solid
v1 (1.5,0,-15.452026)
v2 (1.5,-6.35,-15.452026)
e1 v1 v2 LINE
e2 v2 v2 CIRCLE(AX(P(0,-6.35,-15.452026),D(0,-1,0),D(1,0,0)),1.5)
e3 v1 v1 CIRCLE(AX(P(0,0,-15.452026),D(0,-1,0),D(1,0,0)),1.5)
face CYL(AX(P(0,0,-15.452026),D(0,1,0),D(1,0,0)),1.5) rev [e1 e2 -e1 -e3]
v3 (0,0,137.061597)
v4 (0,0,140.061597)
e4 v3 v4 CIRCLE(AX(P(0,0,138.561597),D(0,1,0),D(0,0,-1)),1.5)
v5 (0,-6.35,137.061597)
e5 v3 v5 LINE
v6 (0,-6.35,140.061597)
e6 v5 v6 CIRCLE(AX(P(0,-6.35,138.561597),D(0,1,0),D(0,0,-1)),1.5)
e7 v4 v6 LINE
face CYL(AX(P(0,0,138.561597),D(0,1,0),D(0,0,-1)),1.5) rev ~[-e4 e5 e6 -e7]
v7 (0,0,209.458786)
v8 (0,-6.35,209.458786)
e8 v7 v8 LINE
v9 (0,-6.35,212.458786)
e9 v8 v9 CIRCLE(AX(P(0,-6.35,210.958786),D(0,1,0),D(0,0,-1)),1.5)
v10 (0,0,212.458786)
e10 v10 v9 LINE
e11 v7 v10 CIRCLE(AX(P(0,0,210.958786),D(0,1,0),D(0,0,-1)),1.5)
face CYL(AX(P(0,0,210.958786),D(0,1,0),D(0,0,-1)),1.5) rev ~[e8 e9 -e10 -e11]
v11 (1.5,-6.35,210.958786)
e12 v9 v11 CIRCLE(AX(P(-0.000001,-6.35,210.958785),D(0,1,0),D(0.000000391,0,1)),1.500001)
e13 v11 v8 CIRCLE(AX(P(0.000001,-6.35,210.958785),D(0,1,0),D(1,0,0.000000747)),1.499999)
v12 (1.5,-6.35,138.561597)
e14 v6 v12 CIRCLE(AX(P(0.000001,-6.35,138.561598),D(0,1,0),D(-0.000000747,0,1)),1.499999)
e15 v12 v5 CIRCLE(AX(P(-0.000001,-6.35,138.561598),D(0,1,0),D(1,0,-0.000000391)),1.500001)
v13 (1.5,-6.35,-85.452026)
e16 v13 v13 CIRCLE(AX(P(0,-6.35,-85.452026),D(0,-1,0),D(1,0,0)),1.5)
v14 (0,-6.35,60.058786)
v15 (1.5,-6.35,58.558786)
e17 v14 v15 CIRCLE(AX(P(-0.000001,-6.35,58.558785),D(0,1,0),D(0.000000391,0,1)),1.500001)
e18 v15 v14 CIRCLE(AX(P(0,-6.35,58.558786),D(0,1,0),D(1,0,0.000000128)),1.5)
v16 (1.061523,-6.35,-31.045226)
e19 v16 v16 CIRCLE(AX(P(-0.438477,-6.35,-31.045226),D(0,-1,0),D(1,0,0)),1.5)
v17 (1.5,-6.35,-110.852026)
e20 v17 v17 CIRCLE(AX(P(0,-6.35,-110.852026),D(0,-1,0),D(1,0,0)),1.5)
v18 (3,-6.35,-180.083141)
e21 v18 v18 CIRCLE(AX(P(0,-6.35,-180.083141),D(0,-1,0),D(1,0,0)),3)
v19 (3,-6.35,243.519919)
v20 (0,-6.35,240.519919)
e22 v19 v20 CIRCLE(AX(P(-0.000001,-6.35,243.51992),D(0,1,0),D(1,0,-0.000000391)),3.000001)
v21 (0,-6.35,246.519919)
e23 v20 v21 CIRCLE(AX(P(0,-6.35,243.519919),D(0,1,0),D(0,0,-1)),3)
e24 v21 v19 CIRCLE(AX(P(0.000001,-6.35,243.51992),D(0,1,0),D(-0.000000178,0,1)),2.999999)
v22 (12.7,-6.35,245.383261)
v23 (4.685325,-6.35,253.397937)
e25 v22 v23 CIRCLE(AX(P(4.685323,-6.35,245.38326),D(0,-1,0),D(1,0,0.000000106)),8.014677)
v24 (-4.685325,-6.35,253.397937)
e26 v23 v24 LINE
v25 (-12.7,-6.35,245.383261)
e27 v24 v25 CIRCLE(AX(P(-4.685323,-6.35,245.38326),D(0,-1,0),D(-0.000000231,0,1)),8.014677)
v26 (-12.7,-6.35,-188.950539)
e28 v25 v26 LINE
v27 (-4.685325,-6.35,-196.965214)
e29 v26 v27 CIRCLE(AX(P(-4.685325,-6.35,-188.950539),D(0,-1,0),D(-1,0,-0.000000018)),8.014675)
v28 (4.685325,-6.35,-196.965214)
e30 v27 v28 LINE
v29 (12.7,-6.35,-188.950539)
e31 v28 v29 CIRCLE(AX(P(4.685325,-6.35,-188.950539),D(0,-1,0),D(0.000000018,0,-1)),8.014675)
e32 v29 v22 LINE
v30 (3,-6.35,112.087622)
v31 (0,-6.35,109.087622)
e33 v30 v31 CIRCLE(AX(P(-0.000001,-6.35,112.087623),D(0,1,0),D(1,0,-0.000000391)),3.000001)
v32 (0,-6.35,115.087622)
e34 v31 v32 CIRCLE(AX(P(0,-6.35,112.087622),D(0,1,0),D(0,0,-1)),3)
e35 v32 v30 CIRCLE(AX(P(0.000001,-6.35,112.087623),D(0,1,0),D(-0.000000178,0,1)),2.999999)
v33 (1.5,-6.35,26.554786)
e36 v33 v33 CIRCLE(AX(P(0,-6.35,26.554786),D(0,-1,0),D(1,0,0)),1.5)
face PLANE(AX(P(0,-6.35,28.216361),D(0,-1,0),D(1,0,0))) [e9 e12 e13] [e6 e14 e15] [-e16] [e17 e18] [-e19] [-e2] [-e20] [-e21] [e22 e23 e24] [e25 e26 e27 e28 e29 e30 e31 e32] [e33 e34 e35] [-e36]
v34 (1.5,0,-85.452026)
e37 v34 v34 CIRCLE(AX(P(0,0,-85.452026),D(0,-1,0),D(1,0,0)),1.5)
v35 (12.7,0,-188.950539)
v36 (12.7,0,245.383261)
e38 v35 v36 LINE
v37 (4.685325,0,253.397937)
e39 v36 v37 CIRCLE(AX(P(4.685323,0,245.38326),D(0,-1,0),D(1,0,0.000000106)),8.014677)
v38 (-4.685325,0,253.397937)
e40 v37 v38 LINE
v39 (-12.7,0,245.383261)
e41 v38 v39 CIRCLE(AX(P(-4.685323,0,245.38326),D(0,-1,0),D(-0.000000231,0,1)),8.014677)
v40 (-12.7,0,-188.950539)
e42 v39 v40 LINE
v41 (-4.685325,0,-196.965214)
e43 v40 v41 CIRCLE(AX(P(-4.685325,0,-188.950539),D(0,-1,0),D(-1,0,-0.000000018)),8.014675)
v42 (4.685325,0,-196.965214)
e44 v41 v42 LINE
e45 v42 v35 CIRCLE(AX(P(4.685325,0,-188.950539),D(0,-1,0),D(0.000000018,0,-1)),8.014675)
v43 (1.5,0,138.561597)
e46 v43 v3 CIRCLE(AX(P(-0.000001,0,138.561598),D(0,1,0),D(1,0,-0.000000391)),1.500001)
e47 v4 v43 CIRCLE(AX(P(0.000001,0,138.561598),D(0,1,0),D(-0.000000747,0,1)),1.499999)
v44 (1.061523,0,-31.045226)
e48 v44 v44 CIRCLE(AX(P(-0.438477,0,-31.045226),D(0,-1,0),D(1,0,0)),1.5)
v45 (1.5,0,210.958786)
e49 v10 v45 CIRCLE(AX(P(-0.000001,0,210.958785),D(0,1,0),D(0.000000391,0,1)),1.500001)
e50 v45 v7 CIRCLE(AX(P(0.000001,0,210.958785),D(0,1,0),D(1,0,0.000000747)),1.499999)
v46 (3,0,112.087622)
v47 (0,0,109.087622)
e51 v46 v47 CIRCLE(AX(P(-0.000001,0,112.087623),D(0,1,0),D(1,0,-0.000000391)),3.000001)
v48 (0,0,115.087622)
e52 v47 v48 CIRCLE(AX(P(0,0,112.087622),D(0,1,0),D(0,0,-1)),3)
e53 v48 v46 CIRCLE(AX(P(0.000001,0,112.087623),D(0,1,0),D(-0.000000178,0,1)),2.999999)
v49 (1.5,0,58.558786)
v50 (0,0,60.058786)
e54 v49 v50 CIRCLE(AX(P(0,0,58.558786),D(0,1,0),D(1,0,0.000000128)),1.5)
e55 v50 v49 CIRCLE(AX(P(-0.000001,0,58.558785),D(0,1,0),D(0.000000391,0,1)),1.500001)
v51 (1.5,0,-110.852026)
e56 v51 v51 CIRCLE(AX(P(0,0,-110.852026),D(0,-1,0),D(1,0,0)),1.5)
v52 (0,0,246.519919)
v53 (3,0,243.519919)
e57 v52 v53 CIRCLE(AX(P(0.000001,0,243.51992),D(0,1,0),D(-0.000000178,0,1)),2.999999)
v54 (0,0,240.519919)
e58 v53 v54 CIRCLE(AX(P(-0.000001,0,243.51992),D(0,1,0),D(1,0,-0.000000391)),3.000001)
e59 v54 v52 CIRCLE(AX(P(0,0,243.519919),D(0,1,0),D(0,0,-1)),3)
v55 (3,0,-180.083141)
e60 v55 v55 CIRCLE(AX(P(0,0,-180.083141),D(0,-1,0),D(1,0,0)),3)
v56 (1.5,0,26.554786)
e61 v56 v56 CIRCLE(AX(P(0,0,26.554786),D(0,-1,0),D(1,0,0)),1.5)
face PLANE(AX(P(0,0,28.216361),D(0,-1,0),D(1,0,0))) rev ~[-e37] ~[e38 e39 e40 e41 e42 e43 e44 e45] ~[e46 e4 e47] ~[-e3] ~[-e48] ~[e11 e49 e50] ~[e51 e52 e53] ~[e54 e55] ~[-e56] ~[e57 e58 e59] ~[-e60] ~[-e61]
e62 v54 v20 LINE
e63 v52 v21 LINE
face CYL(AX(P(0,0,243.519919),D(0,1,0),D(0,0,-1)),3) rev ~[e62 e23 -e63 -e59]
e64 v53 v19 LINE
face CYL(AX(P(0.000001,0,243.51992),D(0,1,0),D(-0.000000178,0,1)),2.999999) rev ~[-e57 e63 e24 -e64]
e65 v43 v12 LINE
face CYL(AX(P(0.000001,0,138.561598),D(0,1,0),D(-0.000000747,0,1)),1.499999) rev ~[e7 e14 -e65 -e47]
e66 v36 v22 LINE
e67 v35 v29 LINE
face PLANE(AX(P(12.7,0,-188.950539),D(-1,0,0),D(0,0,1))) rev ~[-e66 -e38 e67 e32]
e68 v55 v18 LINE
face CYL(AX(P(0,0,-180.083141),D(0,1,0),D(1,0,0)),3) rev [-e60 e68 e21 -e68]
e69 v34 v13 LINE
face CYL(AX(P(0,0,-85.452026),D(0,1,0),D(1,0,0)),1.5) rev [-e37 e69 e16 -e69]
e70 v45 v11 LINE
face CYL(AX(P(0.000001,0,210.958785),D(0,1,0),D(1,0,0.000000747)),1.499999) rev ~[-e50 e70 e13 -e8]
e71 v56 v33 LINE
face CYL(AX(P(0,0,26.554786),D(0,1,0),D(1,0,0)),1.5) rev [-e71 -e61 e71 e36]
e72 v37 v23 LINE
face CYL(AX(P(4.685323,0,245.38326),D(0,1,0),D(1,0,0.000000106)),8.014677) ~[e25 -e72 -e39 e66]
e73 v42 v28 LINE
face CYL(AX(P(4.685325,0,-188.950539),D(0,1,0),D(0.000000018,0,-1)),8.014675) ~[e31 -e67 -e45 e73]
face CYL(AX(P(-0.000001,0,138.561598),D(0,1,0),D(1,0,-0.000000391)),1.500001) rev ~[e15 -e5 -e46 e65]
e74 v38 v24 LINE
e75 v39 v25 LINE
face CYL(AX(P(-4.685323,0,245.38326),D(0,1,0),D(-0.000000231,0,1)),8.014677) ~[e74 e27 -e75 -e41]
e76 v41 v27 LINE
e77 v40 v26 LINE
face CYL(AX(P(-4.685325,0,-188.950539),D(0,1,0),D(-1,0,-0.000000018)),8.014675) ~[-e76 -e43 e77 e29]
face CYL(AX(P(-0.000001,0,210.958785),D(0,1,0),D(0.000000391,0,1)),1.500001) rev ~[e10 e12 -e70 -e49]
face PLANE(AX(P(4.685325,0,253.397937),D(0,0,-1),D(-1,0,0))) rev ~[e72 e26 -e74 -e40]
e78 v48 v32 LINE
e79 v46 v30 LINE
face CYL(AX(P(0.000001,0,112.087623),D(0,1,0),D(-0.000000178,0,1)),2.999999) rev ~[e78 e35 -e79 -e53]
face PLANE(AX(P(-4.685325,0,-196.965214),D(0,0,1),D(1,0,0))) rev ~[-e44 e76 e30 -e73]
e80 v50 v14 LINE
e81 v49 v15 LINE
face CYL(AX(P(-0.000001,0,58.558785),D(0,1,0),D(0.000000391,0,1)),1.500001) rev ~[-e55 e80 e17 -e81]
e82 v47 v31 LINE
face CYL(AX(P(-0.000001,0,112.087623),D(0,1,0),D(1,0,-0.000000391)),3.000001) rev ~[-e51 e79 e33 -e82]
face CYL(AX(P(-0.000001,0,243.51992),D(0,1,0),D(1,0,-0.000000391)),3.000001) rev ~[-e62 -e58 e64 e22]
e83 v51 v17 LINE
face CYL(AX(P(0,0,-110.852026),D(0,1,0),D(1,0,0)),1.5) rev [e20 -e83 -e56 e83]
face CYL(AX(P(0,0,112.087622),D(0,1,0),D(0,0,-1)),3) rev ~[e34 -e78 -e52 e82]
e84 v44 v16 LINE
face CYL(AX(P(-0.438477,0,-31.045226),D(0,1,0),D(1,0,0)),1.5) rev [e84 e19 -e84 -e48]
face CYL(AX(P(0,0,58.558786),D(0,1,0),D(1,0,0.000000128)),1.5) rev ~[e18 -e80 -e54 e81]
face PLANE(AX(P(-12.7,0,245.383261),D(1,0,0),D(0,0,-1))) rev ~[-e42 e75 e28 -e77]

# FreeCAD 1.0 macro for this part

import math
import FreeCAD as App
import Part
import Sketcher

doc = App.newDocument("Part")
params = doc.addObject("Spreadsheet::Sheet", "Params")
for row, (alias, value) in enumerate([
    ("sketch1_diameter", "6 mm"),
    ("sketch1_diameter2", "3 mm"),
    ("pad1_length", "6.35 mm"),
], start=1):
    params.set(f"A{row}", alias)
    params.set(f"B{row}", "=" + value)
    params.setAlias(f"B{row}", alias)

body = doc.addObject("PartDesign::Body", "Body")

# Sketch on XZ plane
sketch1 = body.newObject("Sketcher::SketchObject", "Sketch")
sketch1.AttachmentSupport = (doc.getObject("XZ_Plane"), [""])
sketch1.MapMode = "FlatFace"
sketch1.addGeometry([
    Part.ArcOfCircle(Part.Circle(App.Vector(-4.7, -189, 0), App.Vector(0, 0, 1), 8), math.radians(-180), math.radians(-90)),  # 0
    Part.LineSegment(App.Vector(-4.7, -197, 0), App.Vector(4.7, -197, 0)),  # 1
    Part.ArcOfCircle(Part.Circle(App.Vector(4.7, -189, 0), App.Vector(0, 0, 1), 8), math.radians(-90), math.radians(0)),  # 2
    Part.LineSegment(App.Vector(12.7, -189, 0), App.Vector(12.7, 245.4, 0)),  # 3
    Part.ArcOfCircle(Part.Circle(App.Vector(4.7, 245.4, 0), App.Vector(0, 0, 1), 8), math.radians(0), math.radians(90)),  # 4
    Part.LineSegment(App.Vector(4.7, 253.4, 0), App.Vector(-4.7, 253.4, 0)),  # 5
    Part.ArcOfCircle(Part.Circle(App.Vector(-4.7, 245.4, 0), App.Vector(0, 0, 1), 8), math.radians(90), math.radians(180)),  # 6
    Part.LineSegment(App.Vector(-12.7, 245.4, 0), App.Vector(-12.7, -189, 0)),  # 7
    Part.Circle(App.Vector(0, -180.1, 0), App.Vector(0, 0, 1), 3),  # 8
    Part.Circle(App.Vector(0, -110.9, 0), App.Vector(0, 0, 1), 1.5),  # 9
    Part.Circle(App.Vector(0, -85.5, 0), App.Vector(0, 0, 1), 1.5),  # 10
    Part.Circle(App.Vector(-0.4, -31, 0), App.Vector(0, 0, 1), 1.5),  # 11
    Part.Circle(App.Vector(0, -15.5, 0), App.Vector(0, 0, 1), 1.5),  # 12
    Part.Circle(App.Vector(0, 26.6, 0), App.Vector(0, 0, 1), 1.5),  # 13
    Part.ArcOfCircle(Part.Circle(App.Vector(0, 58.6, 0), App.Vector(0, 0, 1), 1.5), math.radians(0), math.radians(90)),  # 14
    Part.ArcOfCircle(Part.Circle(App.Vector(0, 58.6, 0), App.Vector(0, 0, 1), 1.5), math.radians(90), math.radians(360)),  # 15
    Part.ArcOfCircle(Part.Circle(App.Vector(0, 243.5, 0), App.Vector(0, 0, 1), 3), math.radians(-90), math.radians(0)),  # 16
    Part.ArcOfCircle(Part.Circle(App.Vector(0, 243.5, 0), App.Vector(0, 0, 1), 3), math.radians(90), math.radians(270)),  # 17
    Part.ArcOfCircle(Part.Circle(App.Vector(0, 243.5, 0), App.Vector(0, 0, 1), 3), math.radians(0), math.radians(90)),  # 18
    Part.ArcOfCircle(Part.Circle(App.Vector(0, 112.1, 0), App.Vector(0, 0, 1), 3), math.radians(-90), math.radians(0)),  # 19
    Part.ArcOfCircle(Part.Circle(App.Vector(0, 112.1, 0), App.Vector(0, 0, 1), 3), math.radians(90), math.radians(270)),  # 20
    Part.ArcOfCircle(Part.Circle(App.Vector(0, 112.1, 0), App.Vector(0, 0, 1), 3), math.radians(0), math.radians(90)),  # 21
    Part.ArcOfCircle(Part.Circle(App.Vector(0, 138.6, 0), App.Vector(0, 0, 1), 1.5), math.radians(-90), math.radians(0)),  # 22
    Part.ArcOfCircle(Part.Circle(App.Vector(0, 138.6, 0), App.Vector(0, 0, 1), 1.5), math.radians(90), math.radians(270)),  # 23
    Part.ArcOfCircle(Part.Circle(App.Vector(0, 138.6, 0), App.Vector(0, 0, 1), 1.5), math.radians(0), math.radians(90)),  # 24
    Part.ArcOfCircle(Part.Circle(App.Vector(0, 211, 0), App.Vector(0, 0, 1), 1.5), math.radians(-90), math.radians(0)),  # 25
    Part.ArcOfCircle(Part.Circle(App.Vector(0, 211, 0), App.Vector(0, 0, 1), 1.5), math.radians(90), math.radians(270)),  # 26
    Part.ArcOfCircle(Part.Circle(App.Vector(0, 211, 0), App.Vector(0, 0, 1), 1.5), math.radians(0), math.radians(90)),  # 27
], False)
sketch1.addConstraint([
    Sketcher.Constraint("Tangent", 0, 2, 1, 1),
    Sketcher.Constraint("Tangent", 1, 2, 2, 1),
    Sketcher.Constraint("Tangent", 2, 2, 3, 1),
    Sketcher.Constraint("Tangent", 3, 2, 4, 1),
    Sketcher.Constraint("Tangent", 4, 2, 5, 1),
    Sketcher.Constraint("Tangent", 5, 2, 6, 1),
    Sketcher.Constraint("Tangent", 6, 2, 7, 1),
    Sketcher.Constraint("Tangent", 7, 2, 0, 1),
    Sketcher.Constraint("Tangent", 14, 1, 15, 2),
    Sketcher.Constraint("Coincident", 15, 1, 14, 2),
    Sketcher.Constraint("Tangent", 16, 1, 17, 2),
    Sketcher.Constraint("Tangent", 17, 1, 18, 2),
    Sketcher.Constraint("Tangent", 18, 1, 16, 2),
    Sketcher.Constraint("Tangent", 19, 1, 20, 2),
    Sketcher.Constraint("Tangent", 20, 1, 21, 2),
    Sketcher.Constraint("Tangent", 21, 1, 19, 2),
    Sketcher.Constraint("Tangent", 22, 1, 23, 2),
    Sketcher.Constraint("Tangent", 23, 1, 24, 2),
    Sketcher.Constraint("Tangent", 24, 1, 22, 2),
    Sketcher.Constraint("Tangent", 25, 1, 26, 2),
    Sketcher.Constraint("Tangent", 26, 1, 27, 2),
    Sketcher.Constraint("Tangent", 27, 1, 25, 2),
    Sketcher.Constraint("Horizontal", 1),
    Sketcher.Constraint("Vertical", 3),
    Sketcher.Constraint("Horizontal", 5),
    Sketcher.Constraint("Vertical", 7),
    Sketcher.Constraint("Equal", 0, 2),
    Sketcher.Constraint("Equal", 2, 4),
    Sketcher.Constraint("Equal", 4, 6),
    Sketcher.Constraint("Equal", 9, 10),
    Sketcher.Constraint("Equal", 10, 11),
    Sketcher.Constraint("Equal", 11, 12),
    Sketcher.Constraint("Equal", 12, 13),
    Sketcher.Constraint("Equal", 13, 14),
    Sketcher.Constraint("Equal", 8, 16),
    Sketcher.Constraint("Equal", 18, 19),
    Sketcher.Constraint("Equal", 15, 22),
    Sketcher.Constraint("Equal", 24, 25),
    Sketcher.Constraint("PointOnObject", 8, 3, -2),
    Sketcher.Constraint("PointOnObject", 9, 3, -2),
    Sketcher.Constraint("PointOnObject", 10, 3, -2),
    Sketcher.Constraint("PointOnObject", 12, 3, -2),
    Sketcher.Constraint("PointOnObject", 13, 3, -2),
    Sketcher.Constraint("PointOnObject", 14, 3, -2),
    Sketcher.Constraint("PointOnObject", 16, 3, -2),
    Sketcher.Constraint("PointOnObject", 19, 3, -2),
    Sketcher.Constraint("PointOnObject", 22, 3, -2),
    Sketcher.Constraint("PointOnObject", 25, 3, -2),
    Sketcher.Constraint("PointOnObject", 15, 1, -2),
    Sketcher.Constraint("PointOnObject", 16, 1, -2),
    Sketcher.Constraint("PointOnObject", 17, 1, -2),
    Sketcher.Constraint("PointOnObject", 19, 1, -2),
    Sketcher.Constraint("PointOnObject", 20, 1, -2),
    Sketcher.Constraint("PointOnObject", 22, 1, -2),
    Sketcher.Constraint("PointOnObject", 23, 1, -2),
    Sketcher.Constraint("PointOnObject", 25, 1, -2),
    Sketcher.Constraint("PointOnObject", 26, 1, -2),
    Sketcher.Constraint("Horizontal", 15, 3, 14, 1),
    Sketcher.Constraint("Horizontal", 17, 3, 18, 1),
    Sketcher.Constraint("Horizontal", 20, 3, 21, 1),
    Sketcher.Constraint("Horizontal", 23, 3, 24, 1),
    Sketcher.Constraint("Horizontal", 26, 3, 27, 1),
    Sketcher.Constraint("Diameter", 8, 6.0),
    Sketcher.Constraint("Diameter", 9, 3.0),
    Sketcher.Constraint("DistanceY", 10, 3, 12, 3, 70.0),
    Sketcher.Constraint("DistanceX", -1, 1, 2, 2, 12.7),
    Sketcher.Constraint("DistanceX", 6, 2, -1, 1, 12.7),
    Sketcher.Constraint("DistanceY", 9, 3, 10, 3, 25.4),
    Sketcher.Constraint("DistanceY", 3, 1, 3, 2, 434.3338),
    Sketcher.Constraint("Radius", 0, 8.014675),
    Sketcher.Constraint("DistanceY", 13, 3, 14, 3, 32.003999),
    Sketcher.Constraint("DistanceY", -1, 1, 24, 3, 138.561598),
    Sketcher.Constraint("DistanceY", 8, 3, 4, 3, 425.466401),
    Sketcher.Constraint("DistanceY", 10, 3, 11, 3, 54.4068),
    Sketcher.Constraint("DistanceX", 11, 3, 2, 3, 5.123802),
    Sketcher.Constraint("DistanceY", 0, 3, -1, 1, 188.950539),
    Sketcher.Constraint("DistanceY", -1, 1, 16, 3, 243.51992),
    Sketcher.Constraint("DistanceY", -1, 1, 20, 3, 112.087622),
    Sketcher.Constraint("DistanceY", 12, 3, 13, 3, 42.006812),
    Sketcher.Constraint("DistanceY", 12, 3, 19, 3, 127.539649),
    Sketcher.Constraint("DistanceY", -1, 1, 25, 3, 210.958785),
])
sketch1.setExpression("Constraints[62]", "Params.sketch1_diameter")
sketch1.setExpression("Constraints[63]", "Params.sketch1_diameter2")
pad1 = body.newObject("PartDesign::Pad", "Pad")
pad1.Profile = sketch1
pad1.setExpression("Length", "Params.pad1_length")

doc.recompute()
